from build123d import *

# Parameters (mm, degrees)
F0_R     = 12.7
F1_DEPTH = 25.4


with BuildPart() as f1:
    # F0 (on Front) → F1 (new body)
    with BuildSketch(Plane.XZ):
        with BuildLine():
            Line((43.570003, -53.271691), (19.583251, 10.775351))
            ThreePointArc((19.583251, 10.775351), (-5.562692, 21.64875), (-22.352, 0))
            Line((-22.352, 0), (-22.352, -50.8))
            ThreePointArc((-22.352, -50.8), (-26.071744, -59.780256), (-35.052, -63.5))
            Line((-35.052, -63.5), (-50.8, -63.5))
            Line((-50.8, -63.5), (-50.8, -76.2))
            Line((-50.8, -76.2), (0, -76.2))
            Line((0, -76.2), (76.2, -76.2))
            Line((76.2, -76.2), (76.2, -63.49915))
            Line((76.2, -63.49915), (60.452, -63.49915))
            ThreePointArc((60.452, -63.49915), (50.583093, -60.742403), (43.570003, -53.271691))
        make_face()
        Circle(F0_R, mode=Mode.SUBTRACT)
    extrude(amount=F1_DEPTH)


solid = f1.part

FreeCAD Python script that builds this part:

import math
import FreeCAD as App
import Part
import Sketcher

V = App.Vector
Q = App.Units.Quantity

doc = App.newDocument("Part")
body = doc.addObject("PartDesign::Body", "Body")

sketch1 = body.newObject("Sketcher::SketchObject", "Sketch")
sketch1.AttachmentSupport = (doc.getObject("XZ_Plane"), [""])
sketch1.MapMode = "FlatFace"
sketch1.addGeometry([
    Part.LineSegment(V(44, -53, 0), V(20, 11, 0)),
    Part.ArcOfCircle(Part.Circle(V(0, 0, 0), V(0, 0, 1), 22), math.radians(29), math.radians(180)),
    Part.LineSegment(V(-22, 0, 0), V(-22, -51, 0)),
    Part.ArcOfCircle(Part.Circle(V(-35, -51, 0), V(0, 0, 1), 13), math.radians(-90), math.radians(0)),
    Part.LineSegment(V(-35, -64, 0), V(-51, -64, 0)),
    Part.LineSegment(V(-51, -64, 0), V(-51, -76, 0)),
    Part.LineSegment(V(-51, -76, 0), V(76, -76, 0)),
    Part.LineSegment(V(76, -76, 0), V(76, -63, 0)),
    Part.LineSegment(V(76, -63, 0), V(60, -63, 0)),
    Part.ArcOfCircle(Part.Circle(V(60, -44, 0), V(0, 0, 1), 19), math.radians(-152), math.radians(-90)),
    Part.Circle(V(0, 0, 0), V(0, 0, 1), 13),
], False)
sketch1.addConstraint([
    Sketcher.Constraint("Coincident", 0, 2, 1, 1),
    Sketcher.Constraint("Tangent", 1, 2, 2, 1),
    Sketcher.Constraint("Tangent", 2, 2, 3, 2),
    Sketcher.Constraint("Tangent", 3, 1, 4, 1),
    Sketcher.Constraint("Coincident", 4, 2, 5, 1),
    Sketcher.Constraint("Coincident", 5, 2, 6, 1),
    Sketcher.Constraint("Coincident", 6, 2, 7, 1),
    Sketcher.Constraint("Coincident", 7, 2, 8, 1),
    Sketcher.Constraint("Coincident", 8, 2, 9, 2),
    Sketcher.Constraint("Coincident", 9, 1, 0, 1),
    Sketcher.Constraint("Vertical", 2),
    Sketcher.Constraint("Horizontal", 4),
    Sketcher.Constraint("Vertical", 5),
    Sketcher.Constraint("Horizontal", 6),
    Sketcher.Constraint("Vertical", 7),
    Sketcher.Constraint("Horizontal", 8),
    Sketcher.Constraint("Coincident", 1, 3, -1, 1),
    Sketcher.Constraint("Coincident", 10, 3, -1, 1),
    Sketcher.Constraint("Equal", 3, 10),
    Sketcher.Constraint("Equal", 4, 8),
    Sketcher.Constraint("Diameter", 10, Q("1 in")),
    Sketcher.Constraint("DistanceX", 6, 1, 6, 2, Q("5 in")),
    Sketcher.Constraint("DistanceY", 2, 2, 2, 1, Q("2 in")),
    Sketcher.Constraint("Radius", 1, Q("0.88 in")),
    Sketcher.Constraint("Radius", 9, Q("0.7499999 in")),
    Sketcher.Constraint("DistanceY", 5, 2, 5, 1, Q("0.5 in")),
    Sketcher.Constraint("DistanceX", 4, 2, -1, 1, Q("2 in")),
    Sketcher.Constraint("DistanceY", 7, 1, 7, 2, Q("12.70085 mm")),
    Sketcher.Constraint("DistanceY", 7, 2, 0, 2, Q("74.274501 mm")),
    Sketcher.Constraint("Distance", 0, Q("68.391431 mm")),
    Sketcher.Constraint("DistanceX", -1, 1, 9, 3, Q("60.453878 mm")),
])
pad1 = body.newObject("PartDesign::Pad", "Pad")
pad1.Profile = sketch1
pad1.Length = Q("1 in")

doc.recompute()
